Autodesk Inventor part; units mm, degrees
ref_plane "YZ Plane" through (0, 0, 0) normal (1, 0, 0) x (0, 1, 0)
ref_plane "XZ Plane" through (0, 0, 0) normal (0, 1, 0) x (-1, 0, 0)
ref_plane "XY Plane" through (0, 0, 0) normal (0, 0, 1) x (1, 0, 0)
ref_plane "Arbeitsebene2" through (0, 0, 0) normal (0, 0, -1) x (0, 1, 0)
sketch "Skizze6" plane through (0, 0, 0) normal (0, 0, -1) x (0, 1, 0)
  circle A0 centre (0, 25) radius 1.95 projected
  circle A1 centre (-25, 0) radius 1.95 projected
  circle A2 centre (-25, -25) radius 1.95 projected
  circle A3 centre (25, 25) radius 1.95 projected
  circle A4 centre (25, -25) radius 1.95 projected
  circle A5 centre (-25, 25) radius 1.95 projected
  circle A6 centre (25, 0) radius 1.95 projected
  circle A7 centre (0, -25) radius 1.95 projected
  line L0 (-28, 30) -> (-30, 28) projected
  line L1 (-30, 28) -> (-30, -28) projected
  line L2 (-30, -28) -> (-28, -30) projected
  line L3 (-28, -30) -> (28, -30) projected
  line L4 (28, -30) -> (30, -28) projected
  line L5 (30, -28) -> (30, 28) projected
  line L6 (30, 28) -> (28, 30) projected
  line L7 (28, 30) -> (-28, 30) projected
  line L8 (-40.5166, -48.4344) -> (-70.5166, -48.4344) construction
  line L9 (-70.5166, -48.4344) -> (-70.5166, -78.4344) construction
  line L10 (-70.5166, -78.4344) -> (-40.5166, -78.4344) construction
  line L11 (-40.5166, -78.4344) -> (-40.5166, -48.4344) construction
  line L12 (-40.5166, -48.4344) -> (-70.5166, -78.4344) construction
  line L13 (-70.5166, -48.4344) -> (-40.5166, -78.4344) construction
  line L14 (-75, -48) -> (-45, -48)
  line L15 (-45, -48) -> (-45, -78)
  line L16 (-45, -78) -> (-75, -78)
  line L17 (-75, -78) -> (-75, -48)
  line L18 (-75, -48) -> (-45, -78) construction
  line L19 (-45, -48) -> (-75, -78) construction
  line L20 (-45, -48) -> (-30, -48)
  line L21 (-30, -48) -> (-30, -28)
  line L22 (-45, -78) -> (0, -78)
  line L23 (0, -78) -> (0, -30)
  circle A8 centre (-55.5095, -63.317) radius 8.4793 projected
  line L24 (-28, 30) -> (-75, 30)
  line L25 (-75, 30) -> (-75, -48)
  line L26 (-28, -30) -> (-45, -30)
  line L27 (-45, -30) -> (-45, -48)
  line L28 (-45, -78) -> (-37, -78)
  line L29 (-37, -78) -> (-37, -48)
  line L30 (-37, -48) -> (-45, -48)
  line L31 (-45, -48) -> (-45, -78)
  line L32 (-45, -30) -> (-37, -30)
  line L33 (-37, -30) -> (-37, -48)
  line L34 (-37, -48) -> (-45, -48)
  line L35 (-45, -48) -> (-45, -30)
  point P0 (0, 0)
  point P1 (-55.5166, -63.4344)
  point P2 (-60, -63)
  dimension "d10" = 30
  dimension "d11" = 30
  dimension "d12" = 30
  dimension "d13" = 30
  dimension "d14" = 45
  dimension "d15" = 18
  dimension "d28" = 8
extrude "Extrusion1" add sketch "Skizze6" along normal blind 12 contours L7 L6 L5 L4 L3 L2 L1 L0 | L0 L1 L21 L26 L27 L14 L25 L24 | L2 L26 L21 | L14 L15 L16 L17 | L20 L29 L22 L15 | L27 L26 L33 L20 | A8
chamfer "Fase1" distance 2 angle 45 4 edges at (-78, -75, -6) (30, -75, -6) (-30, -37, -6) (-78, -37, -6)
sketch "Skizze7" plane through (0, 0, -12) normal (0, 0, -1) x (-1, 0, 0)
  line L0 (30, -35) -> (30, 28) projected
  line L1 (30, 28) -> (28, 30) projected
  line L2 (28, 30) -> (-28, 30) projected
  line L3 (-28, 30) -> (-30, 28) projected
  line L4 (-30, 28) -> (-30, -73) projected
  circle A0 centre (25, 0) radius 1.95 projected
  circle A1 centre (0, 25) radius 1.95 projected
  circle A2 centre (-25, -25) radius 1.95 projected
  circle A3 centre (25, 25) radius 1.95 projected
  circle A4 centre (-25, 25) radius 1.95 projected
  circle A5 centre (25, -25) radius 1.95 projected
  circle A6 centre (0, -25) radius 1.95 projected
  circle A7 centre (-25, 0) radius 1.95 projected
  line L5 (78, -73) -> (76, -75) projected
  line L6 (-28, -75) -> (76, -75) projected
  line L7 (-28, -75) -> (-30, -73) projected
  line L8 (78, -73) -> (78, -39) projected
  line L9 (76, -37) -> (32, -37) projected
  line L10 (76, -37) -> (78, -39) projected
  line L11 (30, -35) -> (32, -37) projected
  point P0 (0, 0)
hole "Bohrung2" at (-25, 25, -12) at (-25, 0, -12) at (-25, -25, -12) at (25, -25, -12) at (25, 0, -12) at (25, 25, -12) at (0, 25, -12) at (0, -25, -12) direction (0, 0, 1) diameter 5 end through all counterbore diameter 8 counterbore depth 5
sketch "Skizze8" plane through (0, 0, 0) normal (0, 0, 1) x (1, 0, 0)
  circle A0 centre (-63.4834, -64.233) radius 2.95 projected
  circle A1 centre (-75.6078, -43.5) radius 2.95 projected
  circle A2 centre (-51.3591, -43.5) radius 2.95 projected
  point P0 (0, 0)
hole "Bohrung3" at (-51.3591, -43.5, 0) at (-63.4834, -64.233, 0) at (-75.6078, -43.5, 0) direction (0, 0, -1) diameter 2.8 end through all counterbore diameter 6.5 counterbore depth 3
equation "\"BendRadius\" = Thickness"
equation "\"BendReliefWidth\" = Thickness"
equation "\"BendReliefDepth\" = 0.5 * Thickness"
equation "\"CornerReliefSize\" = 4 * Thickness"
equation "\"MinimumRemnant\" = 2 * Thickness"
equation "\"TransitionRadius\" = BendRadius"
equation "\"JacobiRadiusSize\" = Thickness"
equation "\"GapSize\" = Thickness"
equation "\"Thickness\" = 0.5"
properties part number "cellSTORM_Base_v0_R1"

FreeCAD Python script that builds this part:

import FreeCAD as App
import Part
import Sketcher
from FreeCAD import Vector


def edges_at(feature, points):
    """Names of the edges that pass closest to the given points."""
    edges = feature.Shape.Edges
    near = lambda p: min(range(len(edges)), key=lambda i: edges[i].distToShape(Part.Vertex(*p))[0])
    return sorted({f"Edge{near(p) + 1}" for p in points})

doc = App.newDocument("Part")
body = doc.addObject("PartDesign::Body", "Body")

sketch1 = body.newObject("Sketcher::SketchObject", "Sketch")
sketch1.AttachmentSupport = (doc.getObject("XY_Plane"), [""])
sketch1.MapMode = "FlatFace"
sketch1.addGeometry([
    Part.LineSegment(Vector(30, 28, 0), Vector(30, -75, 0)),
    Part.LineSegment(Vector(30, -75, 0), Vector(-78, -75, 0)),
    Part.LineSegment(Vector(-78, -75, 0), Vector(-78, -37, 0)),
    Part.LineSegment(Vector(-78, -37, 0), Vector(-30, -37, 0)),
    Part.LineSegment(Vector(-30, -37, 0), Vector(-30, 28, 0)),
    Part.LineSegment(Vector(-30, 28, 0), Vector(-28, 30, 0)),
    Part.LineSegment(Vector(-28, 30, 0), Vector(28, 30, 0)),
    Part.LineSegment(Vector(28, 30, 0), Vector(30, 28, 0)),
    Part.Circle(Vector(-25, -25, 0), Vector(0, 0, 1), 1.9),
    Part.Circle(Vector(-25, 0, 0), Vector(0, 0, 1), 1.9),
    Part.Circle(Vector(-25, 25, 0), Vector(0, 0, 1), 1.9),
    Part.Circle(Vector(0, -25, 0), Vector(0, 0, 1), 1.9),
    Part.Circle(Vector(25, -25, 0), Vector(0, 0, 1), 1.9),
    Part.Circle(Vector(0, 25, 0), Vector(0, 0, 1), 1.9),
    Part.Circle(Vector(25, 0, 0), Vector(0, 0, 1), 1.9),
    Part.Circle(Vector(25, 25, 0), Vector(0, 0, 1), 1.9),
], False)
sketch1.addConstraint([
    Sketcher.Constraint("Coincident", 0, 2, 1, 1),
    Sketcher.Constraint("Coincident", 1, 2, 2, 1),
    Sketcher.Constraint("Coincident", 2, 2, 3, 1),
    Sketcher.Constraint("Coincident", 3, 2, 4, 1),
    Sketcher.Constraint("Coincident", 4, 2, 5, 1),
    Sketcher.Constraint("Coincident", 5, 2, 6, 1),
    Sketcher.Constraint("Coincident", 6, 2, 7, 1),
    Sketcher.Constraint("Coincident", 7, 2, 0, 1),
    Sketcher.Constraint("Vertical", 0),
    Sketcher.Constraint("Horizontal", 1),
    Sketcher.Constraint("Vertical", 2),
    Sketcher.Constraint("Horizontal", 3),
    Sketcher.Constraint("Vertical", 4),
    Sketcher.Constraint("Horizontal", 6),
    Sketcher.Constraint("Equal", 8, 9),
    Sketcher.Constraint("Equal", 9, 10),
    Sketcher.Constraint("Equal", 10, 11),
    Sketcher.Constraint("Equal", 11, 12),
    Sketcher.Constraint("Equal", 12, 13),
    Sketcher.Constraint("Equal", 13, 14),
    Sketcher.Constraint("Equal", 14, 15),
    Sketcher.Constraint("Symmetric", 10, 3, 12, 3, -1, 1),
    Sketcher.Constraint("Symmetric", 11, 3, 13, 3, -1, 1),
    Sketcher.Constraint("Symmetric", 9, 3, 14, 3, -1, 1),
    Sketcher.Constraint("Symmetric", 8, 3, 15, 3, -1, 1),
    Sketcher.Constraint("Symmetric", 8, 3, 12, 3, -2),
    Sketcher.Constraint("Symmetric", 4, 2, 7, 2, -2),
    Sketcher.Constraint("PointOnObject", 9, 3, -1),
    Sketcher.Constraint("PointOnObject", 11, 3, -2),
    Sketcher.Constraint("Perpendicular", 5, 7),
    Sketcher.Constraint("Horizontal", 8, 3, 11, 3),
    Sketcher.Constraint("Vertical", 8, 3, 9, 3),
    Sketcher.Constraint("Equal", 5, 7),
    Sketcher.Constraint("DistanceX", -1, 1, 0, 2, 30.0),
    Sketcher.Constraint("DistanceY", -1, 1, 5, 2, 30.0),
    Sketcher.Constraint("Diameter", 8, 3.9),
    Sketcher.Constraint("DistanceX", 1, 2, 1, 1, 108.0),
    Sketcher.Constraint("DistanceX", 6, 1, 6, 2, 56.0),
    Sketcher.Constraint("DistanceY", 0, 2, 0, 1, 103.0),
    Sketcher.Constraint("DistanceY", 2, 1, 2, 2, 38.0),
    Sketcher.Constraint("DistanceX", 8, 3, -1, 1, 25.0),
    Sketcher.Constraint("DistanceY", 8, 3, -1, 1, 25.0),
])
pad1 = body.newObject("PartDesign::Pad", "Pad")
pad1.Profile = sketch1
pad1.Length = 12
pad1.Reversed = True
doc.recompute()

chamfer = body.newObject("PartDesign::Chamfer", "Chamfer")
chamfer.Base = (pad1, edges_at(pad1, [
    (-78, -75, -6),
    (30, -75, -6),
    (-30, -37, -6),
    (-78, -37, -6),
]))
chamfer.Size = 2

sketch2 = body.newObject("Sketcher::SketchObject", "Sketch001")
sketch2.AttachmentSupport = (doc.getObject("XY_Plane"), [""])
sketch2.MapMode = "FlatFace"
sketch2.AttachmentOffset = App.Placement(Vector(0, 0, -12), App.Rotation())
sketch2.addGeometry([
    Part.Circle(Vector(-25, 25, 0), Vector(0, 0, 1), 2.5),
    Part.Circle(Vector(-25, 0, 0), Vector(0, 0, 1), 2.5),
    Part.Circle(Vector(-25, -25, 0), Vector(0, 0, 1), 2.5),
    Part.Circle(Vector(25, -25, 0), Vector(0, 0, 1), 2.5),
    Part.Circle(Vector(25, 0, 0), Vector(0, 0, 1), 2.5),
    Part.Circle(Vector(25, 25, 0), Vector(0, 0, 1), 2.5),
    Part.Circle(Vector(0, 25, 0), Vector(0, 0, 1), 2.5),
    Part.Circle(Vector(0, -25, 0), Vector(0, 0, 1), 2.5),
], False)
sketch2.addConstraint([
    Sketcher.Constraint("Equal", 0, 1),
    Sketcher.Constraint("Equal", 1, 2),
    Sketcher.Constraint("Equal", 2, 3),
    Sketcher.Constraint("Equal", 3, 4),
    Sketcher.Constraint("Equal", 4, 5),
    Sketcher.Constraint("Equal", 5, 6),
    Sketcher.Constraint("Equal", 6, 7),
    Sketcher.Constraint("Symmetric", 0, 3, 3, 3, -1, 1),
    Sketcher.Constraint("Symmetric", 1, 3, 4, 3, -1, 1),
    Sketcher.Constraint("Symmetric", 2, 3, 5, 3, -1, 1),
    Sketcher.Constraint("Symmetric", 6, 3, 7, 3, -1, 1),
    Sketcher.Constraint("Symmetric", 2, 3, 3, 3, -2),
    Sketcher.Constraint("PointOnObject", 1, 3, -1),
    Sketcher.Constraint("PointOnObject", 6, 3, -2),
    Sketcher.Constraint("Horizontal", 5, 3, 6, 3),
    Sketcher.Constraint("Vertical", 0, 3, 1, 3),
    Sketcher.Constraint("Diameter", 0, 5.0),
    Sketcher.Constraint("DistanceX", 0, 3, -1, 1, 25.0),
    Sketcher.Constraint("DistanceY", -1, 1, 0, 3, 25.0),
])
doc.recompute()
hole = body.newObject("PartDesign::Hole", "Hole")
hole.Profile = sketch2
hole.ThreadType = "None"
hole.Diameter = 5
hole.DepthType = "ThroughAll"
hole.HoleCutType = "Counterbore"
hole.HoleCutDiameter = 8
hole.HoleCutDepth = 5
hole.Reversed = True

sketch3 = body.newObject("Sketcher::SketchObject", "Sketch002")
sketch3.AttachmentSupport = (doc.getObject("XY_Plane"), [""])
sketch3.MapMode = "FlatFace"
sketch3.addGeometry([
    Part.Circle(Vector(-51.4, -43.5, 0), Vector(0, 0, 1), 1.4),
    Part.Circle(Vector(-63.5, -64.2, 0), Vector(0, 0, 1), 1.4),
    Part.Circle(Vector(-75.6, -43.5, 0), Vector(0, 0, 1), 1.4),
], False)
sketch3.addConstraint([
    Sketcher.Constraint("Equal", 0, 1),
    Sketcher.Constraint("Equal", 1, 2),
    Sketcher.Constraint("Horizontal", 0, 3, 2, 3),
    Sketcher.Constraint("Diameter", 0, 2.8),
    Sketcher.Constraint("DistanceY", 0, 3, -1, 1, 43.5),
    Sketcher.Constraint("DistanceX", 0, 3, -1, 1, 51.359),
    Sketcher.Constraint("DistanceY", 1, 3, -1, 1, 64.233),
    Sketcher.Constraint("DistanceX", 1, 3, -1, 1, 63.4834),
    Sketcher.Constraint("DistanceX", 2, 3, -1, 1, 75.6078),
])
doc.recompute()
hole2 = body.newObject("PartDesign::Hole", "Hole001")
hole2.Profile = sketch3
hole2.ThreadType = "None"
hole2.Diameter = 2.8
hole2.DepthType = "ThroughAll"
hole2.HoleCutType = "Counterbore"
hole2.HoleCutDiameter = 6.5
hole2.HoleCutDepth = 3

doc.recompute()
